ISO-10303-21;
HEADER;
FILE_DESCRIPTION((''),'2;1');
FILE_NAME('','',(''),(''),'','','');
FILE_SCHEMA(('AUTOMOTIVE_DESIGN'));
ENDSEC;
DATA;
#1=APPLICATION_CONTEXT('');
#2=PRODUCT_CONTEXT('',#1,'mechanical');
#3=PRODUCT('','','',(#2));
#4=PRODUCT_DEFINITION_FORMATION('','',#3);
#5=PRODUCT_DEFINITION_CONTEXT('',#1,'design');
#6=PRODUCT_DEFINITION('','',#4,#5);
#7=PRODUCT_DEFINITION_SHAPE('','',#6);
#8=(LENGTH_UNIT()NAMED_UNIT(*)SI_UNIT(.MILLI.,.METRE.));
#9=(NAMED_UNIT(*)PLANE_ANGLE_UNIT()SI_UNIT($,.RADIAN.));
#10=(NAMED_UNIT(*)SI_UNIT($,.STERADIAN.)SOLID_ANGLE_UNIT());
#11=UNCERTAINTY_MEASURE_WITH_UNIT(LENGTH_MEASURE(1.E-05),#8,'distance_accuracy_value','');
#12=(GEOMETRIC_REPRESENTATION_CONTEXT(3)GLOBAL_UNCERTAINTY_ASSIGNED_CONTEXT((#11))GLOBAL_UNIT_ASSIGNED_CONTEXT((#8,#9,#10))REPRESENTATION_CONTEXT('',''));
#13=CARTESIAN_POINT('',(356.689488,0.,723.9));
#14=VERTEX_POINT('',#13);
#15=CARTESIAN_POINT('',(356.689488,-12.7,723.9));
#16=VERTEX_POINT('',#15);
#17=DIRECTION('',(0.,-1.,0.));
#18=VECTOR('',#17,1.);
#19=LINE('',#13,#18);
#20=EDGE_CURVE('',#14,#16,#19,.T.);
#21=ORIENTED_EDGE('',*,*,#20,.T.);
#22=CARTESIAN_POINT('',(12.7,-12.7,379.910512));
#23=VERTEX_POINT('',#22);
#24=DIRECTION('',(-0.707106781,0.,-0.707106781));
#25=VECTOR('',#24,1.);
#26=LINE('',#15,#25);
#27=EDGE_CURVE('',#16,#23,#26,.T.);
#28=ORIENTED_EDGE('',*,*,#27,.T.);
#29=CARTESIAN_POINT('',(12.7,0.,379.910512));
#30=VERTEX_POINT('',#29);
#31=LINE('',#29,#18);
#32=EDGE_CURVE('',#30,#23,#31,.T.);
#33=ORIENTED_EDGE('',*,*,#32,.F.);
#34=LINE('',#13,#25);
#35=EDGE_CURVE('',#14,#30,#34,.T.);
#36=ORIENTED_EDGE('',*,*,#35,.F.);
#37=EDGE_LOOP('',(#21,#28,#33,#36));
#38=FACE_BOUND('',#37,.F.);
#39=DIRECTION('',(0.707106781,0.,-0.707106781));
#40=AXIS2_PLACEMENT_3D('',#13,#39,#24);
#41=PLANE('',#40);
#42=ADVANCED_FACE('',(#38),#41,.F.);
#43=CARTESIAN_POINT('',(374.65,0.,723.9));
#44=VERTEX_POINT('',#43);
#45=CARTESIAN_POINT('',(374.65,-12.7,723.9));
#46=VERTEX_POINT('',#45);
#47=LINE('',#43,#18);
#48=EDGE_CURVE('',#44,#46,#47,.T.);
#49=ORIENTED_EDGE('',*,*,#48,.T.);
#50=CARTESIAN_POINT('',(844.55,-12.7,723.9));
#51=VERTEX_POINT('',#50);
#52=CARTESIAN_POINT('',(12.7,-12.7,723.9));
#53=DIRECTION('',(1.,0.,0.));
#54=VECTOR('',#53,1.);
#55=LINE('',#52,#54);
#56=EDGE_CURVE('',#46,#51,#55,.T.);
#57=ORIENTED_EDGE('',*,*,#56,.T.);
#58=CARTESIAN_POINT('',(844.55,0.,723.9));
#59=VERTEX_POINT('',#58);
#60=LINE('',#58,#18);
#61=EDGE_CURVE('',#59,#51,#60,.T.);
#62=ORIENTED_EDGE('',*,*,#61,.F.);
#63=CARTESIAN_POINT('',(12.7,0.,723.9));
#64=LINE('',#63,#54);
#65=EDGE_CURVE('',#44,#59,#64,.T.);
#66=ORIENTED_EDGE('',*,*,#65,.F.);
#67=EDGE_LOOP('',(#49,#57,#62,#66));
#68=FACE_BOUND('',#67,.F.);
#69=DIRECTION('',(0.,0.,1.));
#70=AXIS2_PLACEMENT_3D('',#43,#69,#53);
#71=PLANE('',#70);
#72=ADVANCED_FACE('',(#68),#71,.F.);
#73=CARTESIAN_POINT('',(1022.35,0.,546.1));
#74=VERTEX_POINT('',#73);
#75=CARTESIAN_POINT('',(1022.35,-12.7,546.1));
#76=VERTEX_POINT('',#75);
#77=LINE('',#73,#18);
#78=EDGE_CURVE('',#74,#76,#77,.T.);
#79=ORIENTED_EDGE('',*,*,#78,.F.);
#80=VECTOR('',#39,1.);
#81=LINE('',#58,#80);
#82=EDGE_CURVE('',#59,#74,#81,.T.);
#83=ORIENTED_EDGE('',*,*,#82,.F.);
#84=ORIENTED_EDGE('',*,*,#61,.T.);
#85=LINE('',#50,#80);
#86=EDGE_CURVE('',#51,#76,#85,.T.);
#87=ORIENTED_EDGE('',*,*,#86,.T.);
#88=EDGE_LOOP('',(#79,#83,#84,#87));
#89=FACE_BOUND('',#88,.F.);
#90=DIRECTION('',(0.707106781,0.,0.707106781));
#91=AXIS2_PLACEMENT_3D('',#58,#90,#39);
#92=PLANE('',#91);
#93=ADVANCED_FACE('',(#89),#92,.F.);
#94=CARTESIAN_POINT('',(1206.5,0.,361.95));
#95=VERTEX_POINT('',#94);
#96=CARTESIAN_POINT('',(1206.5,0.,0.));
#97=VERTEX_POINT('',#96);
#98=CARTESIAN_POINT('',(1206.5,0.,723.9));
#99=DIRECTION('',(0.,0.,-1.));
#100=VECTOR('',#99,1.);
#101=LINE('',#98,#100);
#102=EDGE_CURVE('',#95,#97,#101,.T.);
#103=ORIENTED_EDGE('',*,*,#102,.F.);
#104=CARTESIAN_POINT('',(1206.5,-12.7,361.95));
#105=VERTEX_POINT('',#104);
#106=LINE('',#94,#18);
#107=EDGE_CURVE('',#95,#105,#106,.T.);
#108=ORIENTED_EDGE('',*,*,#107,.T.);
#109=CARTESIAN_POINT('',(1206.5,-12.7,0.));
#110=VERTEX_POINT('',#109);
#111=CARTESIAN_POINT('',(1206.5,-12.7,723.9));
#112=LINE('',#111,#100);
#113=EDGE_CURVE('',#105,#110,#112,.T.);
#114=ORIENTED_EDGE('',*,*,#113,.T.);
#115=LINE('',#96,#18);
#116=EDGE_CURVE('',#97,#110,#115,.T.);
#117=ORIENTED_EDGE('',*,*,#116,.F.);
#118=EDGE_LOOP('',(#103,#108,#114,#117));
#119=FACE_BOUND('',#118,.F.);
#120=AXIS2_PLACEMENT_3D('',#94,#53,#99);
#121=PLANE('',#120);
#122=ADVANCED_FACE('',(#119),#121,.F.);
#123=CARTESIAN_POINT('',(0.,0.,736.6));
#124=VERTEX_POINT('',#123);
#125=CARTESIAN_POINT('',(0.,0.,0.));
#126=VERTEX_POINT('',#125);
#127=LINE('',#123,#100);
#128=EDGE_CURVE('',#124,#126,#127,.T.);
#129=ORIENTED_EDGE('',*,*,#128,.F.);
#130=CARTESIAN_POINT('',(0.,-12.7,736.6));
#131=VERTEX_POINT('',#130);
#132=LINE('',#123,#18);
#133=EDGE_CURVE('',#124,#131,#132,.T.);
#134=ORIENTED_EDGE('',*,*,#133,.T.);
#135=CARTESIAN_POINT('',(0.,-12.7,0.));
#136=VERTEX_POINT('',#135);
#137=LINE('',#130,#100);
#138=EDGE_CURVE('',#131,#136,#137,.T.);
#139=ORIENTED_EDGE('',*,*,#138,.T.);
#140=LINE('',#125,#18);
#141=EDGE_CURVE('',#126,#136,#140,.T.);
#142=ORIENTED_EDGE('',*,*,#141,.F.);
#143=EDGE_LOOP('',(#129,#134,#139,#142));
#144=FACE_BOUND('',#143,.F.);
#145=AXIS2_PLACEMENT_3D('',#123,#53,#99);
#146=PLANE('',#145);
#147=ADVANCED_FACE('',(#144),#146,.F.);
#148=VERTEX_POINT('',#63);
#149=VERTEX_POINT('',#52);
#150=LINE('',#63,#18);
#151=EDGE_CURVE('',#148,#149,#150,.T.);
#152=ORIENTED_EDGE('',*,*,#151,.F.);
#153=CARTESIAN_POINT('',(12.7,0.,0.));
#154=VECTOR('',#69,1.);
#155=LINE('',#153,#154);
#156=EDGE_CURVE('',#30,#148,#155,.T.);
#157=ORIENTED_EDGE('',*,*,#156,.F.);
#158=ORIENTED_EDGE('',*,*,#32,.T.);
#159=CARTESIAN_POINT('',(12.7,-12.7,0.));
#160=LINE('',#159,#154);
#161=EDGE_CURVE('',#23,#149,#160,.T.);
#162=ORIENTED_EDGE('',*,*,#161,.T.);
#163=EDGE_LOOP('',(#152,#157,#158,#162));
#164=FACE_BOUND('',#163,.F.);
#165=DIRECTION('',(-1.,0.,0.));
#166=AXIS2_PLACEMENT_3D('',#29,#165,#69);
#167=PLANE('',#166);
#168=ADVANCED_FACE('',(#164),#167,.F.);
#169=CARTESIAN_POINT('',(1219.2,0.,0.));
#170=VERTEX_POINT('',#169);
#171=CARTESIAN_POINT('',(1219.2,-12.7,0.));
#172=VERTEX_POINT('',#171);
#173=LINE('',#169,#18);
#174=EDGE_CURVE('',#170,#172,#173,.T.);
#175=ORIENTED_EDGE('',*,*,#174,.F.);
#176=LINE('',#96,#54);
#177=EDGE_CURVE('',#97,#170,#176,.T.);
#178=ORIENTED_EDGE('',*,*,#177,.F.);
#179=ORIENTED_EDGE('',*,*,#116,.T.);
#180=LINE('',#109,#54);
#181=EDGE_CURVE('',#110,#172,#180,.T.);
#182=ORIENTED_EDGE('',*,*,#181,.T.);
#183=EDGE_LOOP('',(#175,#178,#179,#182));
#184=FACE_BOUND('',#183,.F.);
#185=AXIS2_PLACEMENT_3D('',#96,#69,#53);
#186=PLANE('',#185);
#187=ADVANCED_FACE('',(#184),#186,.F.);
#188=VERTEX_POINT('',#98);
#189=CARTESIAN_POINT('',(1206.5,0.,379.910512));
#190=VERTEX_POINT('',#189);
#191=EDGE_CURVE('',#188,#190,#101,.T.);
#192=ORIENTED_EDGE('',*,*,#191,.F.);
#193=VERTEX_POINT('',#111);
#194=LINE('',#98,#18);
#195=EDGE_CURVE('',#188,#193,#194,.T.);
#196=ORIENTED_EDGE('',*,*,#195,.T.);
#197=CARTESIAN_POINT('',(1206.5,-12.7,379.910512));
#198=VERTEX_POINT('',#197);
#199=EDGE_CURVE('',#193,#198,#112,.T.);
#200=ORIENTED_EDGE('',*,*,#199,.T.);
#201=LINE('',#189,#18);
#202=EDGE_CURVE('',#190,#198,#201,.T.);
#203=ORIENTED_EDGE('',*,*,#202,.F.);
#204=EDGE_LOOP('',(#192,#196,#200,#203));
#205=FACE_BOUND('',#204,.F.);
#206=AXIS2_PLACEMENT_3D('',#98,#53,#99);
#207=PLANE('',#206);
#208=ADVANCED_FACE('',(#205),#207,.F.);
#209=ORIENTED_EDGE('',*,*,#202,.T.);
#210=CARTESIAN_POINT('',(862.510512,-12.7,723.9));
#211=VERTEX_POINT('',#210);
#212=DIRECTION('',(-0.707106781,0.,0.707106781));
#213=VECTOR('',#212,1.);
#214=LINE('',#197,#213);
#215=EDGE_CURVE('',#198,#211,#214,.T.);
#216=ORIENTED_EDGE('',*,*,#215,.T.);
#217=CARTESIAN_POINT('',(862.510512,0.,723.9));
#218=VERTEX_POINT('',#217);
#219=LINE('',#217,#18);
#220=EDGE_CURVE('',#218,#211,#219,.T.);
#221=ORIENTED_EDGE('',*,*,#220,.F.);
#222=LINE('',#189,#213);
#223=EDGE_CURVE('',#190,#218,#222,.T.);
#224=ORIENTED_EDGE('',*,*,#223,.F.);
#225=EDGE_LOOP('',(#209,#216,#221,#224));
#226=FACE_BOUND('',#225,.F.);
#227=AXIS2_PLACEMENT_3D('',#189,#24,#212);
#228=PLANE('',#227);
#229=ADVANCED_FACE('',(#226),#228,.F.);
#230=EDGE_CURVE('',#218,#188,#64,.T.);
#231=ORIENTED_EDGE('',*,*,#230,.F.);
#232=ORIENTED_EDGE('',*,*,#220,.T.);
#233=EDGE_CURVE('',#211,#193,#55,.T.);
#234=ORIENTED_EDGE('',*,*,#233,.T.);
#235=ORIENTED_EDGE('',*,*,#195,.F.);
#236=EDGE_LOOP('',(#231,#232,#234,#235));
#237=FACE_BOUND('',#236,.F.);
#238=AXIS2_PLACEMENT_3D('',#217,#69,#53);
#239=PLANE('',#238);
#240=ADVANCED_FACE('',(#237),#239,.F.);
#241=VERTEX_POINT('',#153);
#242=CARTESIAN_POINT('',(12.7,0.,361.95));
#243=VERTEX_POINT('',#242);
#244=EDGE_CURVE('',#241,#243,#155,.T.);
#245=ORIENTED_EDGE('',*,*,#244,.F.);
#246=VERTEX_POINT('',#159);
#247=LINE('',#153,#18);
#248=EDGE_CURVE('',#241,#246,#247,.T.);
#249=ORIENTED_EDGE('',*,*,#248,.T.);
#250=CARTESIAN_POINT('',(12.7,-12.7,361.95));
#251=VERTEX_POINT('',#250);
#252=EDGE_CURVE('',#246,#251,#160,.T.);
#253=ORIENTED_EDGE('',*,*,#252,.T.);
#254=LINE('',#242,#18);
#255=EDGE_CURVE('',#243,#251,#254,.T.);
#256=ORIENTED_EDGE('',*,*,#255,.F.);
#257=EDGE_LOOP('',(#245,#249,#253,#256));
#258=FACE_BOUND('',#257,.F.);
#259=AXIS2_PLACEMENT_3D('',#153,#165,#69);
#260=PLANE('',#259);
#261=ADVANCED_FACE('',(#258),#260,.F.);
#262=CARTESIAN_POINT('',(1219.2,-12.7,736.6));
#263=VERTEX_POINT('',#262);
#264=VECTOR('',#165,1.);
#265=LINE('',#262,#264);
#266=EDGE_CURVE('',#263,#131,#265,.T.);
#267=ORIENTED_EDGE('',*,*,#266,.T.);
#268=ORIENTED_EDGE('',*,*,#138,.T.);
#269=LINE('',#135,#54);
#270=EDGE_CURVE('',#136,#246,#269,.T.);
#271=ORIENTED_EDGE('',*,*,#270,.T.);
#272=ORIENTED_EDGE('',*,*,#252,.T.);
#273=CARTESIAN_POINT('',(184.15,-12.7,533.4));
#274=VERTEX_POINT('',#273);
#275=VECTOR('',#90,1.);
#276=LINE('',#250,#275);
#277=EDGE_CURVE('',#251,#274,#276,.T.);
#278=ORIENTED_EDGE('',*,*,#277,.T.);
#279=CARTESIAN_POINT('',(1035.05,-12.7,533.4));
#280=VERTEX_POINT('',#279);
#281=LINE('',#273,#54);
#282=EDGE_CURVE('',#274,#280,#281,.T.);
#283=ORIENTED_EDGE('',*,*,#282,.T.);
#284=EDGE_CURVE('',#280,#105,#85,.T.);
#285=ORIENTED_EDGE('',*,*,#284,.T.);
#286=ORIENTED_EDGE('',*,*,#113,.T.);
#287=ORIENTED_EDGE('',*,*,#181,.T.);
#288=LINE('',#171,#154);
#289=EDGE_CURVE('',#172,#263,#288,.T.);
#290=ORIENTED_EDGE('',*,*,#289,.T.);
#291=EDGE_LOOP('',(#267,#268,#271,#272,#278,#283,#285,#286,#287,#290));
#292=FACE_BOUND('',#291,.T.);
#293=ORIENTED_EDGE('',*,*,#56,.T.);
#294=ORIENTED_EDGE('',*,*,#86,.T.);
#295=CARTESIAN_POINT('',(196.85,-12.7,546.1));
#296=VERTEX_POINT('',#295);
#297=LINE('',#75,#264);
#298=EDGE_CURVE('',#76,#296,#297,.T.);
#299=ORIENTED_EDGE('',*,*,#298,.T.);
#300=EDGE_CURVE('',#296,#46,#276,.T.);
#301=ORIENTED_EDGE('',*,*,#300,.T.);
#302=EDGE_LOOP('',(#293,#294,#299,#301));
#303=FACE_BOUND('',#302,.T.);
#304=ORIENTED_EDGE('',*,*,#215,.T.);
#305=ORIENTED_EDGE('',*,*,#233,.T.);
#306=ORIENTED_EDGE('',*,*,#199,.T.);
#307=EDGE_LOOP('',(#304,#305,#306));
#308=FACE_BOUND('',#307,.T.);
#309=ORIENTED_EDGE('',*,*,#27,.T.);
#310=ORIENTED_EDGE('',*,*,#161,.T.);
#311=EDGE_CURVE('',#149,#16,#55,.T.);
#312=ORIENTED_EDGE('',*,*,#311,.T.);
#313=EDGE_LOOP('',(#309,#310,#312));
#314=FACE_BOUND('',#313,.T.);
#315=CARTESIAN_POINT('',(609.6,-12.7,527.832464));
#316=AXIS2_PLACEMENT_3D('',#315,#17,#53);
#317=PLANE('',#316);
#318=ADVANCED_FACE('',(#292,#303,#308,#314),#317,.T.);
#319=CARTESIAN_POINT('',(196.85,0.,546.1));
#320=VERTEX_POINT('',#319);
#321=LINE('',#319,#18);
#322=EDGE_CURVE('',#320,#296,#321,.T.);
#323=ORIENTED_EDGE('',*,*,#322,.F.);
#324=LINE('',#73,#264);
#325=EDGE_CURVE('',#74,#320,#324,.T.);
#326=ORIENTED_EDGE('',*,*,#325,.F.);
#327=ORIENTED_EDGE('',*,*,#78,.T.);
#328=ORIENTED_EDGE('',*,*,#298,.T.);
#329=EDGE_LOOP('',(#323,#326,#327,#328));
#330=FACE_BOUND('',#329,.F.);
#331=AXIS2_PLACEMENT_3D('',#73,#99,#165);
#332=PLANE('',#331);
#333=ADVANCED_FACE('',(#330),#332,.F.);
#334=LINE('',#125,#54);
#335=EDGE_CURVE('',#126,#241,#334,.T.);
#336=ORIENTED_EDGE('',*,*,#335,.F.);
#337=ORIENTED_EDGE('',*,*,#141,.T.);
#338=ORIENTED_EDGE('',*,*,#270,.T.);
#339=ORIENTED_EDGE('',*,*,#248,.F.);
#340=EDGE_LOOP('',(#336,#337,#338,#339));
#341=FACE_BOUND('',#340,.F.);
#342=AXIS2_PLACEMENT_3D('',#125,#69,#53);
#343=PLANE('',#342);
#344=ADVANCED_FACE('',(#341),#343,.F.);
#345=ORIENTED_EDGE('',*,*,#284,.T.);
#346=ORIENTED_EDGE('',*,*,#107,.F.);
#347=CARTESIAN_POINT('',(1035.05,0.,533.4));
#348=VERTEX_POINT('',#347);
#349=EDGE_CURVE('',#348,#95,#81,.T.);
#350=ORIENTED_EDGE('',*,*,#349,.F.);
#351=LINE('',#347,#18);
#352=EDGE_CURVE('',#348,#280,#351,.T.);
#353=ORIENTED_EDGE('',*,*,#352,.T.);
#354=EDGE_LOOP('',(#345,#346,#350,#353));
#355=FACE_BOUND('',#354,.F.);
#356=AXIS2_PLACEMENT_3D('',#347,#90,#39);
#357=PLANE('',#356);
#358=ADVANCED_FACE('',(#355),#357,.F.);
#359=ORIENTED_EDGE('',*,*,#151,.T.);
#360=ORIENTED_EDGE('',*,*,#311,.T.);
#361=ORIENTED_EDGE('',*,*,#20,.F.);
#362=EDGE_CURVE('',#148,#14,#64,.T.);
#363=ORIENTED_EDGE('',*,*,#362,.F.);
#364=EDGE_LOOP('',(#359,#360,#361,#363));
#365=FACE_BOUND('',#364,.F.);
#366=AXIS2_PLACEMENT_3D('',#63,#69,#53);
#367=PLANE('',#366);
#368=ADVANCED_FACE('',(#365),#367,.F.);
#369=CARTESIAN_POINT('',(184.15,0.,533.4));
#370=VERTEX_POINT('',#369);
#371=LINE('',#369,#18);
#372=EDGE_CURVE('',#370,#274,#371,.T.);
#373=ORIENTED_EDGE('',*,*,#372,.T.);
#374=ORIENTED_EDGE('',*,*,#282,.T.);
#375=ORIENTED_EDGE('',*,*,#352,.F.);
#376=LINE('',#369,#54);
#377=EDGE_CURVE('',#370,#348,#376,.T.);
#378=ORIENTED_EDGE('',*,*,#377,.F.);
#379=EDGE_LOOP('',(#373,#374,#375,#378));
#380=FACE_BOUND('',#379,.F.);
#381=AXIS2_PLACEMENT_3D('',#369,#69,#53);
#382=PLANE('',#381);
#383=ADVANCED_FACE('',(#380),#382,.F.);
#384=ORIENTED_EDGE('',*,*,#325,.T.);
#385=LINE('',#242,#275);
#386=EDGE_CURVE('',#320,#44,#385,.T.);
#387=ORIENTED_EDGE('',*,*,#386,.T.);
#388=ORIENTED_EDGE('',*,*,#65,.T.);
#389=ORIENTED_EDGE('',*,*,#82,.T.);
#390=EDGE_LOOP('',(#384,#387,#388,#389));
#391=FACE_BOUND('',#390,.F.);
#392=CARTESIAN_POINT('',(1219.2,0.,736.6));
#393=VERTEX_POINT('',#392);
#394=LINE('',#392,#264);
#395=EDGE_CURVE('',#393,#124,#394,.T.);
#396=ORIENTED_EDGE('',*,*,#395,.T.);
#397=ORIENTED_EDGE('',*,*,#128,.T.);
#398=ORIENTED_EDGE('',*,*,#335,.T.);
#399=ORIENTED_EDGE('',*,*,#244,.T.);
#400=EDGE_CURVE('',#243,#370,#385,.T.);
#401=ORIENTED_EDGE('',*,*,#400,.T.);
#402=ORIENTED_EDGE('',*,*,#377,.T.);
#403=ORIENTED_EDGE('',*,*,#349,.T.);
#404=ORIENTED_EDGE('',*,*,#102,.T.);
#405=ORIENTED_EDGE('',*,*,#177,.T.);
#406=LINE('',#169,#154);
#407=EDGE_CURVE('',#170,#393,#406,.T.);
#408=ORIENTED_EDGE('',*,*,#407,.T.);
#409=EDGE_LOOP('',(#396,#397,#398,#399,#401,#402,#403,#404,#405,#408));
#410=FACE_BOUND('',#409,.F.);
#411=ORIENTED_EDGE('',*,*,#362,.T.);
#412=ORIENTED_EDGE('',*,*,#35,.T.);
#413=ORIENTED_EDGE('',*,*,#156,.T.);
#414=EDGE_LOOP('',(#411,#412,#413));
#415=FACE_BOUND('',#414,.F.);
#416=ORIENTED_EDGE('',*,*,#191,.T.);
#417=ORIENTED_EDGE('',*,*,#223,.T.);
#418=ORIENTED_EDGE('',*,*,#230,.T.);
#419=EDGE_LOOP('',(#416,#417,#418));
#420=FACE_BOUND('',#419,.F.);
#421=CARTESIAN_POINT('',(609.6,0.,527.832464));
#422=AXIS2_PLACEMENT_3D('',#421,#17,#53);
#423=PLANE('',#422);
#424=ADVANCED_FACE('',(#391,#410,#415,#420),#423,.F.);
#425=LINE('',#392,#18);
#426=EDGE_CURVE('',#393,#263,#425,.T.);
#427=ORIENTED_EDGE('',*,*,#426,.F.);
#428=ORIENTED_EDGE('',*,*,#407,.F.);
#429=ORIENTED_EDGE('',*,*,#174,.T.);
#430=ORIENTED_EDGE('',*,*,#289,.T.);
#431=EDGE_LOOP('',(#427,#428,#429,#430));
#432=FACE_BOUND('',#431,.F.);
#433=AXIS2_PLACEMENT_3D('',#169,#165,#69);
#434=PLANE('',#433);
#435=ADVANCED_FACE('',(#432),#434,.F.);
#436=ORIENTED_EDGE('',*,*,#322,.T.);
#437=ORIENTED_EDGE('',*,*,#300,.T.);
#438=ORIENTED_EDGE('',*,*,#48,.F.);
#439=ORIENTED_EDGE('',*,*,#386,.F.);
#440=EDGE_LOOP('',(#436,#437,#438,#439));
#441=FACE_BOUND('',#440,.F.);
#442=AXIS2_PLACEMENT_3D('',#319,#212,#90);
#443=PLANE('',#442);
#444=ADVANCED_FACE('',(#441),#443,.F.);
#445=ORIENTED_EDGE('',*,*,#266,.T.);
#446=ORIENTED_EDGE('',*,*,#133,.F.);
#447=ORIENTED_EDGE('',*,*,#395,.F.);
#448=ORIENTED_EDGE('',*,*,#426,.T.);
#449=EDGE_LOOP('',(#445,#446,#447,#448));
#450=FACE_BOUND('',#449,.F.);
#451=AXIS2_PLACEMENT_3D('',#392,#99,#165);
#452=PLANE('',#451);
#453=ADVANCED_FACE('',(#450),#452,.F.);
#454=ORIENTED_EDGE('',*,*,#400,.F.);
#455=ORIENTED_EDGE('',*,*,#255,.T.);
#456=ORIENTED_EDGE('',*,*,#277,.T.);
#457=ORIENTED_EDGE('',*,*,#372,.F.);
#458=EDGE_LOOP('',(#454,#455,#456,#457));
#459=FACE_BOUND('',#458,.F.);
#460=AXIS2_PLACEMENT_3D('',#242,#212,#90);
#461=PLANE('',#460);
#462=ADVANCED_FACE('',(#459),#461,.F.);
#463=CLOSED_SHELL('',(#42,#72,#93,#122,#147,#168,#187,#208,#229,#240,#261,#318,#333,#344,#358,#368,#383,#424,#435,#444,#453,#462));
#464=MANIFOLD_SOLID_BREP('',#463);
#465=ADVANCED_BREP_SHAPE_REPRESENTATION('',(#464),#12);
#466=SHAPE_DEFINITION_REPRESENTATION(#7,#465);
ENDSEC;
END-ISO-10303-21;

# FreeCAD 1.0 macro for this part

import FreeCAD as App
import Part
import Sketcher
Q = App.Units.Quantity


def add_polygon(sketch, points):
    """Adds a closed chain of lines whose ends are joined by coincident constraints."""
    first, n = sketch.GeometryCount, len(points)
    for a, b in zip(points, points[1:] + points[:1]):
        sketch.addGeometry(Part.LineSegment(App.Vector(*a, 0), App.Vector(*b, 0)), False)
    for i in range(n):
        sketch.addConstraint(Sketcher.Constraint("Coincident", first + i, 2, first + (i + 1) % n, 1))

doc = App.newDocument("Part")
body = doc.addObject("PartDesign::Body", "Body")

# Sketch on XZ plane
sketch1 = doc.addObject("Sketcher::SketchObject", "Sketch")
body.addObject(sketch1)
sketch1.AttachmentSupport = (doc.XZ_Plane, [""])
sketch1.MapMode = "FlatFace"
add_polygon(sketch1, [(0, 737), (0, 0), (13, 0), (13, 362), (184, 533), (1035, 533), (1206, 362), (1206, 0), (1219, 0), (1219, 737)])  # lines 0-9
add_polygon(sketch1, [(197, 546), (375, 724), (845, 724), (1022, 546)])  # lines 10-13
add_polygon(sketch1, [(863, 724), (1206, 724), (1206, 380)])  # lines 14-16
add_polygon(sketch1, [(13, 380), (13, 724), (357, 724)])  # lines 17-19
sketch1.addConstraint(Sketcher.Constraint("Vertical", 0))
sketch1.addConstraint(Sketcher.Constraint("Horizontal", 1))
sketch1.addConstraint(Sketcher.Constraint("Vertical", 2))
sketch1.addConstraint(Sketcher.Constraint("Horizontal", 4))
sketch1.addConstraint(Sketcher.Constraint("Vertical", 6))
sketch1.addConstraint(Sketcher.Constraint("Horizontal", 7))
sketch1.addConstraint(Sketcher.Constraint("Vertical", 8))
sketch1.addConstraint(Sketcher.Constraint("Horizontal", 9))
sketch1.addConstraint(Sketcher.Constraint("Horizontal", 11))
sketch1.addConstraint(Sketcher.Constraint("Horizontal", 13))
sketch1.addConstraint(Sketcher.Constraint("Horizontal", 14))
sketch1.addConstraint(Sketcher.Constraint("Vertical", 15))
sketch1.addConstraint(Sketcher.Constraint("Vertical", 17))
sketch1.addConstraint(Sketcher.Constraint("Horizontal", 18))
sketch1.addConstraint(Sketcher.Constraint("Coincident", 0, 2, -1, 1))
sketch1.addConstraint(Sketcher.Constraint("PointOnObject", 6, 2, -1))
sketch1.addConstraint(Sketcher.Constraint("Perpendicular", 3, 5))
sketch1.addConstraint(Sketcher.Constraint("Perpendicular", 5, 10))
sketch1.addConstraint(Sketcher.Constraint("Perpendicular", 10, 12))
sketch1.addConstraint(Sketcher.Constraint("Parallel", 12, 16))
sketch1.addConstraint(Sketcher.Constraint("Perpendicular", 16, 19))
sketch1.addConstraint(Sketcher.Constraint("Horizontal", 2, 2, 5, 2))
sketch1.addConstraint(Sketcher.Constraint("Horizontal", 11, 2, 14, 2))
sketch1.addConstraint(Sketcher.Constraint("Horizontal", 16, 2, 17, 2))
sketch1.addConstraint(Sketcher.Constraint("Horizontal", 15, 2, 19, 2))
sketch1.addConstraint(Sketcher.Constraint("Vertical", 6, 2, 14, 2))
sketch1.addConstraint(Sketcher.Constraint("Vertical", 2, 2, 17, 2))
sketch1.addConstraint(Sketcher.Constraint("Equal", 1, 7))
sketch1.addConstraint(Sketcher.Constraint("Equal", 14, 18))
sketch1.addConstraint(Sketcher.Constraint("DistanceX", 9, 2, 9, 1, Q("48 in")))
sketch1.addConstraint(Sketcher.Constraint("DistanceY", 0, 2, 0, 1, Q("29 in")))
sketch1.addConstraint(Sketcher.Constraint("DistanceX", 1, 1, 1, 2, Q("0.5 in")))
sketch1.addConstraint(Sketcher.Constraint("DistanceX", 4, 1, 4, 2, Q("33.5 in")))
sketch1.addConstraint(Sketcher.Constraint("DistanceX", 11, 1, 11, 2, Q("18.5 in")))
sketch1.addConstraint(Sketcher.Constraint("DistanceX", 13, 2, 13, 1, Q("32.5 in")))
sketch1.addConstraint(Sketcher.Constraint("DistanceY", -1, 1, 3, 2, Q("21 in")))
sketch1.addConstraint(Sketcher.Constraint("DistanceX", 10, 2, 4, 2, Q("26 in")))
sketch1.addConstraint(Sketcher.Constraint("DistanceY", -1, 1, 10, 2, Q("28.5 in")))
sketch1.addConstraint(Sketcher.Constraint("Distance", 16, 486.474599))
pad1 = doc.addObject("PartDesign::Pad", "Pad")
body.addObject(pad1)
pad1.Profile = sketch1
pad1.Length = Q("0.5 in")

doc.recompute()
